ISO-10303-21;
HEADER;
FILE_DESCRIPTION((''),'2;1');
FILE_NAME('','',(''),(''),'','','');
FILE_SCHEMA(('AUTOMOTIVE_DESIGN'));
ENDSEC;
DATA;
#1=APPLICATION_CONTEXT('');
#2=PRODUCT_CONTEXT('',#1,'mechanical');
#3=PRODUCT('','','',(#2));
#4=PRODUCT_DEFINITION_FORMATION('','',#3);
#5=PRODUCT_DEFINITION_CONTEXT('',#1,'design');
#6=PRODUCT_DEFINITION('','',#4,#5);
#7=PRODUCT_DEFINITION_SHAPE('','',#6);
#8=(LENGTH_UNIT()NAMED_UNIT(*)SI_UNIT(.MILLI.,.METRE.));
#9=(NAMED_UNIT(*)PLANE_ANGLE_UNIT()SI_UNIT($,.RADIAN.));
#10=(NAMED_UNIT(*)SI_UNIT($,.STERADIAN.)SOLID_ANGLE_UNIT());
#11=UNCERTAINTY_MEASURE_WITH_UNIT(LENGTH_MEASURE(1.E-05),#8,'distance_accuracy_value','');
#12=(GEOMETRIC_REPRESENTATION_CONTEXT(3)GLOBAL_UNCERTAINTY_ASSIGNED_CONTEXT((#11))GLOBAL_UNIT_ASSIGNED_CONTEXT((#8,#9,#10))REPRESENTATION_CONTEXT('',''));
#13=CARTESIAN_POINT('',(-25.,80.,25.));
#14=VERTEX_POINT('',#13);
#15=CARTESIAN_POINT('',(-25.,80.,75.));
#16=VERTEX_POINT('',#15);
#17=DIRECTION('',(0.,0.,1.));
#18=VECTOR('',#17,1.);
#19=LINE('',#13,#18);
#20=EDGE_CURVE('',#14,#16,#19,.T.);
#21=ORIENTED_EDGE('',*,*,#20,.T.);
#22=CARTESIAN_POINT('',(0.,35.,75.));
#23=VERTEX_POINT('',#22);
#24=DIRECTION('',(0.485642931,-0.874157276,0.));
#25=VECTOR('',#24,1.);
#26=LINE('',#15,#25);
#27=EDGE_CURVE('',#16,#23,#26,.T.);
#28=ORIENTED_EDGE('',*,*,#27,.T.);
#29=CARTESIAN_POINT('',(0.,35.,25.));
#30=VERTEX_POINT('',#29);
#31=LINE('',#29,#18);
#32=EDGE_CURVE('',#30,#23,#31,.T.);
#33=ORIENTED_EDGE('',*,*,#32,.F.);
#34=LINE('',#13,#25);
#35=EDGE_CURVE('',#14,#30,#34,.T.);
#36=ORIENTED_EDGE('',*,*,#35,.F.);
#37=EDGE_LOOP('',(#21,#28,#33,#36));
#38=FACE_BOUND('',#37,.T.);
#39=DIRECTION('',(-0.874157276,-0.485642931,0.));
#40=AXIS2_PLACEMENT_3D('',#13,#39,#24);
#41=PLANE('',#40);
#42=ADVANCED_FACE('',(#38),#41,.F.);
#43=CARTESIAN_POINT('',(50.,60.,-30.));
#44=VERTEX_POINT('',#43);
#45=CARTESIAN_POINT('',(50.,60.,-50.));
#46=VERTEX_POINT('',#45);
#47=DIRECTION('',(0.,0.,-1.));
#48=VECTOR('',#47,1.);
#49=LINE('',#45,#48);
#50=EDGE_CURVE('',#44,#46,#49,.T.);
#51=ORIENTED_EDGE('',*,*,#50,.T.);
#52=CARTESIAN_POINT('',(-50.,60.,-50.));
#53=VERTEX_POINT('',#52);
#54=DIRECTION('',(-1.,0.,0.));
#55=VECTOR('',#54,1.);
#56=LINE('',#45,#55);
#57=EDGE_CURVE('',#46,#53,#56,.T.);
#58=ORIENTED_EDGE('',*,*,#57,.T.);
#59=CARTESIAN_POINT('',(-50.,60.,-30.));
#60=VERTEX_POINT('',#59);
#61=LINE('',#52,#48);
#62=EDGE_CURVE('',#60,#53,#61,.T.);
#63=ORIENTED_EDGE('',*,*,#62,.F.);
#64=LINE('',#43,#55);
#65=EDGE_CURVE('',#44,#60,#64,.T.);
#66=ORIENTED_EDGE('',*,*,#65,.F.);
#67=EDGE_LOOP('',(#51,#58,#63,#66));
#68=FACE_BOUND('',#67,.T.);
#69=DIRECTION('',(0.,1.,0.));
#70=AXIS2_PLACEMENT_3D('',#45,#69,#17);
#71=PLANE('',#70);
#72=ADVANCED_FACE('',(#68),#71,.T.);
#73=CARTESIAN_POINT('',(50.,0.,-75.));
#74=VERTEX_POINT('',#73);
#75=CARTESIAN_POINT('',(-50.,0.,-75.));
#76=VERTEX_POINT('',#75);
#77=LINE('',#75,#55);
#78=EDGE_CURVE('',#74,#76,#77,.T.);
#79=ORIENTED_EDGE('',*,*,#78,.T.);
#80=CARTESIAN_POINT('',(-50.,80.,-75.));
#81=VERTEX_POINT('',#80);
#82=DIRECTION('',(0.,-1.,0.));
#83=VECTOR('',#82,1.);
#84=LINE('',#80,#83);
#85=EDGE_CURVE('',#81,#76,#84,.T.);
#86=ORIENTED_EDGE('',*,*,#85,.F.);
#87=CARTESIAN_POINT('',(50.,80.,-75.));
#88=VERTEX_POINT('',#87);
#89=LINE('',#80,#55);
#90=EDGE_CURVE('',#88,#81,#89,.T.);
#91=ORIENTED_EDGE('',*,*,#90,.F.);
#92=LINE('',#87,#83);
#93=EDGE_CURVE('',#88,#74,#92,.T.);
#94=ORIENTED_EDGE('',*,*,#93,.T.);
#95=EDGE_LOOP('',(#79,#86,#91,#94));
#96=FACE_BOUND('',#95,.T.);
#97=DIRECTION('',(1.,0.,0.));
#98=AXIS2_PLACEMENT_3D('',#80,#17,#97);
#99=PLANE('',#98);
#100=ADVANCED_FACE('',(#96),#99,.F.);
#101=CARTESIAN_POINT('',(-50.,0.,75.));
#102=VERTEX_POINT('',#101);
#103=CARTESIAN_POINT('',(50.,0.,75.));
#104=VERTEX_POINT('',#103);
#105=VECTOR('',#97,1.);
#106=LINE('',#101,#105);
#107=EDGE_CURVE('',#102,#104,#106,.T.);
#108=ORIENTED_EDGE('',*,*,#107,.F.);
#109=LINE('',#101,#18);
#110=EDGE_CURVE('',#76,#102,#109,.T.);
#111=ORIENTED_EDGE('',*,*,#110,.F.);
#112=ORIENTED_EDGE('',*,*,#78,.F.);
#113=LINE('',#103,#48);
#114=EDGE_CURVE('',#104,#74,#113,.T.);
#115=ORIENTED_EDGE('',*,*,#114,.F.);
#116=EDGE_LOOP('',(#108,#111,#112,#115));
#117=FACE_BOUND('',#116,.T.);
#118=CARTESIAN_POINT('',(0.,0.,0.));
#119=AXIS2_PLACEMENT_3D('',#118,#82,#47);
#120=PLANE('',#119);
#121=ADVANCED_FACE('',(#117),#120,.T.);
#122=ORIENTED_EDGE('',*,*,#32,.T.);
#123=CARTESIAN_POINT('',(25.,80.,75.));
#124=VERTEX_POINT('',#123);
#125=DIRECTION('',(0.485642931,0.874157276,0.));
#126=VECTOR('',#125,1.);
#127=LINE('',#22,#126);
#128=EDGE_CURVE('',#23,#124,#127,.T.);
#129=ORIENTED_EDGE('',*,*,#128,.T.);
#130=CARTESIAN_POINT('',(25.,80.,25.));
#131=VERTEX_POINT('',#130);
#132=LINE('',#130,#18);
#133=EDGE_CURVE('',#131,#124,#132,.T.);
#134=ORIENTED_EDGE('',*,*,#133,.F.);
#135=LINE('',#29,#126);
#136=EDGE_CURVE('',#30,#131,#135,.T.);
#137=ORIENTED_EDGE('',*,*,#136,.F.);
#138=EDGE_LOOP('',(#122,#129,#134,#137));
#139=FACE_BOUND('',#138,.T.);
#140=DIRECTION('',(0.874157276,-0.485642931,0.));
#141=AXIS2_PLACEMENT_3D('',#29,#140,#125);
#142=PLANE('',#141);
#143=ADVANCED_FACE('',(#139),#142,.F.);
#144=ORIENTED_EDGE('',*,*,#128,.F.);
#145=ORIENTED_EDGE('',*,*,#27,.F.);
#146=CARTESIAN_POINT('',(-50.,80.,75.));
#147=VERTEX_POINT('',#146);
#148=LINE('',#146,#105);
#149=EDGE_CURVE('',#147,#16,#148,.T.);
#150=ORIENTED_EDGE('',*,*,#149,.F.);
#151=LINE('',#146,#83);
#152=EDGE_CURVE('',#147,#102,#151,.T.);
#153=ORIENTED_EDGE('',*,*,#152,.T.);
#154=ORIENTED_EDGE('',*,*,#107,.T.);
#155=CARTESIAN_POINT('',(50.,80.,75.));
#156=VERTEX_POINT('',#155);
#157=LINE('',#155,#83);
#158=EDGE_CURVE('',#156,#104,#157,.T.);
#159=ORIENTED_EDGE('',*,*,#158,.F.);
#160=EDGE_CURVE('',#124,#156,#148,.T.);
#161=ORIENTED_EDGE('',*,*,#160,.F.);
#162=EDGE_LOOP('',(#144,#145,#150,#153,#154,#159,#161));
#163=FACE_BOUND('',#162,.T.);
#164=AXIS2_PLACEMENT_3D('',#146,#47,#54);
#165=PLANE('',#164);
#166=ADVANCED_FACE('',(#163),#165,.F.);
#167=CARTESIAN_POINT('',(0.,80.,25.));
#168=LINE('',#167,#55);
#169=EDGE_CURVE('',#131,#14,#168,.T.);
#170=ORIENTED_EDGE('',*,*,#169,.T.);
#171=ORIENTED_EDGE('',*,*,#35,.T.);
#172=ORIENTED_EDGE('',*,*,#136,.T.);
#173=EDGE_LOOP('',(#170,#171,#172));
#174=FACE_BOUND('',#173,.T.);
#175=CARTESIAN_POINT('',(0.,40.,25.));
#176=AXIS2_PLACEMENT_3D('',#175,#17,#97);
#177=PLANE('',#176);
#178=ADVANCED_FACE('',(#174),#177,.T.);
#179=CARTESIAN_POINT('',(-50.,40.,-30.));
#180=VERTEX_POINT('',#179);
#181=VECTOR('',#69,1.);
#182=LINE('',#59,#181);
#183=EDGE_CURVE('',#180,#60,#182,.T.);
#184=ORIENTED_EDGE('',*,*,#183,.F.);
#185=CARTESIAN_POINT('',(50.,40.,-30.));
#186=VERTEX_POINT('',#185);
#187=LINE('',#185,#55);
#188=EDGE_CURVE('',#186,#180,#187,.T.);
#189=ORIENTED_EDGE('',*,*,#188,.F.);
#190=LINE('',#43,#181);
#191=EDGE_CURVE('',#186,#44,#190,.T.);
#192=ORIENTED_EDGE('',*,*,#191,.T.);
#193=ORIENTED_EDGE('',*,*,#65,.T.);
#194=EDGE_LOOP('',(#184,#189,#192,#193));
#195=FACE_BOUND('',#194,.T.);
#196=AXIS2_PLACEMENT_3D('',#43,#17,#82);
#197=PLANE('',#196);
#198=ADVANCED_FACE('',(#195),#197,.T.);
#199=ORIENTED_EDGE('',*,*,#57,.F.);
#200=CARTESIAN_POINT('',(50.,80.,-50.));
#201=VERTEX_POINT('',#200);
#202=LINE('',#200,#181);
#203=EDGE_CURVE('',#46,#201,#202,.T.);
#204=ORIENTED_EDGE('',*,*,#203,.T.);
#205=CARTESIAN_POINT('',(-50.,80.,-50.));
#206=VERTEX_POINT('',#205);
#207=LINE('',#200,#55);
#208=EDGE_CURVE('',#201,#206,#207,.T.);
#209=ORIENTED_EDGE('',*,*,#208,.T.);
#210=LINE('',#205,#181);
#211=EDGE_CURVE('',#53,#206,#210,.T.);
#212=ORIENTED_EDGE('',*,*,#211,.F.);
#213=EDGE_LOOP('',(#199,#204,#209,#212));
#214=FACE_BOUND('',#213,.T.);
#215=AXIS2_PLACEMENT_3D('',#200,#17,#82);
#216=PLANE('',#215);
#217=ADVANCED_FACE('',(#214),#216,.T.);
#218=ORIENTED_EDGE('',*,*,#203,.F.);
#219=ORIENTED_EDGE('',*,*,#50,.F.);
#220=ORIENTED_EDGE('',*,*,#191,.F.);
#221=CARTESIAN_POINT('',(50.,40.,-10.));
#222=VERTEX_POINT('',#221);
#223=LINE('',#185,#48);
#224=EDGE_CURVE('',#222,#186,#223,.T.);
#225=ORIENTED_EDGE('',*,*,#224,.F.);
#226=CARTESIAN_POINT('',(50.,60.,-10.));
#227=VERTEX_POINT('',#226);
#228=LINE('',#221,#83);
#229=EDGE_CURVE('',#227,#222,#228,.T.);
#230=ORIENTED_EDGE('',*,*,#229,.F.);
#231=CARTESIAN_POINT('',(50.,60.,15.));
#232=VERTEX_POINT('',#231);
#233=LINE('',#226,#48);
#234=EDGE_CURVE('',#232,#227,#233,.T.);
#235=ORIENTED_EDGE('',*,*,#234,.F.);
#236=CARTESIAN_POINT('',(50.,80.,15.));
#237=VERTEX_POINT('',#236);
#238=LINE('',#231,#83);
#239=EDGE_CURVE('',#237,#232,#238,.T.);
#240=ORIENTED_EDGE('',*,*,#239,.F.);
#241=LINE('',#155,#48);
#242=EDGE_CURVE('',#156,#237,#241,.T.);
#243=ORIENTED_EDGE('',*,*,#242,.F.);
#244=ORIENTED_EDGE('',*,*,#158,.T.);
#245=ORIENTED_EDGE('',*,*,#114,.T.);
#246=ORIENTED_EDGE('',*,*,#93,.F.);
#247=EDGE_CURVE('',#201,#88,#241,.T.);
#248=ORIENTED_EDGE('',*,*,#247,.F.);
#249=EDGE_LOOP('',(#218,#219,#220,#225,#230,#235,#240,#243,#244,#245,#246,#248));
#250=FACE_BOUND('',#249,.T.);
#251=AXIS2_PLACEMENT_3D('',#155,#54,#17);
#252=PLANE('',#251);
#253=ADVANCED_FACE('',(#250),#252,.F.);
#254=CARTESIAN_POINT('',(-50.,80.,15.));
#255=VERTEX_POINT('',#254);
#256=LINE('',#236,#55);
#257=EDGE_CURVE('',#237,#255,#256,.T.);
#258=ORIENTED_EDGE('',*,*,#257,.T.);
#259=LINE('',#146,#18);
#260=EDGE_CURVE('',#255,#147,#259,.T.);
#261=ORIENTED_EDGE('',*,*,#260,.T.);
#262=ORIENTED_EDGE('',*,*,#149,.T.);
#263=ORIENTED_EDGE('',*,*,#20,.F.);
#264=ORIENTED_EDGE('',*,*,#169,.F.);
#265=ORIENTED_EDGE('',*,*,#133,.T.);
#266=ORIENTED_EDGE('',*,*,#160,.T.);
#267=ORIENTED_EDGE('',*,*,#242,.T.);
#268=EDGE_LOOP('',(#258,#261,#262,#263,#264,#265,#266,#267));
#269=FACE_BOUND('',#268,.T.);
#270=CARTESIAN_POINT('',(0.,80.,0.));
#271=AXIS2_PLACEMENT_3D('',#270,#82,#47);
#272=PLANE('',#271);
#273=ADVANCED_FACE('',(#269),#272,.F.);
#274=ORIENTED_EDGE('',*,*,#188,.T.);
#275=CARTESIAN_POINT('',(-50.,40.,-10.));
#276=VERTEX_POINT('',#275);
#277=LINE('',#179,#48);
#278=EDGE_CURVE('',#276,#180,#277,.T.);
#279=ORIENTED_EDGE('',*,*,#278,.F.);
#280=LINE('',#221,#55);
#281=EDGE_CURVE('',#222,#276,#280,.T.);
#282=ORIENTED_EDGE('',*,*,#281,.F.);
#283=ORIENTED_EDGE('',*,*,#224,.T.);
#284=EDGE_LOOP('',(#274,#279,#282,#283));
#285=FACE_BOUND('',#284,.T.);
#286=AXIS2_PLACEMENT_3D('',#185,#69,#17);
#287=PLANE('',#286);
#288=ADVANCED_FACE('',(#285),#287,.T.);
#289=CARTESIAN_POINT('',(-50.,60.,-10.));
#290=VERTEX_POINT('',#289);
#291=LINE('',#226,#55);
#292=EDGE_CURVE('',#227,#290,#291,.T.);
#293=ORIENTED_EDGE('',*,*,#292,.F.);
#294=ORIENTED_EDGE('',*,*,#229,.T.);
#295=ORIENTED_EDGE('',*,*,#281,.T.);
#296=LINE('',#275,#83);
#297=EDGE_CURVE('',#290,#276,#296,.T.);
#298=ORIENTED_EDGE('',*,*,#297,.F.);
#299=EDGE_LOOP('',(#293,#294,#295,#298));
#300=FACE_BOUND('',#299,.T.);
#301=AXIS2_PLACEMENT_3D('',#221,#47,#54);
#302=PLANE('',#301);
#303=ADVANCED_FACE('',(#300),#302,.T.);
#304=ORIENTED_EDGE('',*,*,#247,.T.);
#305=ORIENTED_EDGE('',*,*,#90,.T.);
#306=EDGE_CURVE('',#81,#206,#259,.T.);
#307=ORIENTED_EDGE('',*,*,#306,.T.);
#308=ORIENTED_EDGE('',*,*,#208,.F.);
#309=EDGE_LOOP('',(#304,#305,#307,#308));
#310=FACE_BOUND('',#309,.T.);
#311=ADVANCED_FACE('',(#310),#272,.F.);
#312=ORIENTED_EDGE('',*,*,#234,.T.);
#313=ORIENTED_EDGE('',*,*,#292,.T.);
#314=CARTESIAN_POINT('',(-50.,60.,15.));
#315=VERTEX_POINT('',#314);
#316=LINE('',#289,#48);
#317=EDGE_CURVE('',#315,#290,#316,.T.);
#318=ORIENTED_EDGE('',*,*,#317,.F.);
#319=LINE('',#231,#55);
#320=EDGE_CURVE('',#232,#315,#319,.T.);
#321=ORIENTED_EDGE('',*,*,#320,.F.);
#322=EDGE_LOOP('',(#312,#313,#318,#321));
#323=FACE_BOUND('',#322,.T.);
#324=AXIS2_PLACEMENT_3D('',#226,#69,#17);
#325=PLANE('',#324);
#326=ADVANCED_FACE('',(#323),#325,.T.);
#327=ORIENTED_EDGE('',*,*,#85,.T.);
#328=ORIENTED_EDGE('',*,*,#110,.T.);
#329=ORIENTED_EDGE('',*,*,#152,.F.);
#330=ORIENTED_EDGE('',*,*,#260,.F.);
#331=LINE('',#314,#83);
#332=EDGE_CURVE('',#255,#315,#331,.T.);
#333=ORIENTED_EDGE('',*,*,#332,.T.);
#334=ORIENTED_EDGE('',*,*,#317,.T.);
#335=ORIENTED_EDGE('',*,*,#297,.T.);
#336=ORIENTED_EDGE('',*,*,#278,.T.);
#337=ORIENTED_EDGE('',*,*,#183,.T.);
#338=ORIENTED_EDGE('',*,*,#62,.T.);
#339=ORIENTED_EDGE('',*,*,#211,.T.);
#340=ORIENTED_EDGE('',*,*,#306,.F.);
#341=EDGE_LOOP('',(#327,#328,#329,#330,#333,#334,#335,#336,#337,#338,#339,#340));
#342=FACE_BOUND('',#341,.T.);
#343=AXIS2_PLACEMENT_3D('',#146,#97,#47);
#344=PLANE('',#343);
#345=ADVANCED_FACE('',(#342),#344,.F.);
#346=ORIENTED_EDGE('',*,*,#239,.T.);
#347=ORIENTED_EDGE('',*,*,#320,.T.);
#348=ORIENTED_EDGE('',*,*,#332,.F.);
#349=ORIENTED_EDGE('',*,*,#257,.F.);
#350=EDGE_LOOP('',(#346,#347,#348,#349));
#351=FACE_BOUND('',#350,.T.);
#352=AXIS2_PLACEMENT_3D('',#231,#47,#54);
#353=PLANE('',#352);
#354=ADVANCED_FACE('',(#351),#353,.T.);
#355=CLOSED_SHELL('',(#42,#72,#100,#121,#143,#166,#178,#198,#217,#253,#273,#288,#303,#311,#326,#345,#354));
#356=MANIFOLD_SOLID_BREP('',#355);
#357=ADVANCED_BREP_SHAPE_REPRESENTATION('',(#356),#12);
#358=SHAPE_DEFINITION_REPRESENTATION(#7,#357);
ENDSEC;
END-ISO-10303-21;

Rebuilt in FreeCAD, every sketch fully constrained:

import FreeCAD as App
import Part
import Sketcher

doc = App.newDocument("Part")
body = doc.addObject("PartDesign::Body", "Body")

sketch1 = doc.addObject("Sketcher::SketchObject", "Sketch")
body.addObject(sketch1)
sketch1.AttachmentSupport = (doc.XZ_Plane, [""])
sketch1.MapMode = "FlatFace"
sketch1.addGeometry(Part.LineSegment(App.Vector(-50, -75, 0), App.Vector(-50, 75, 0)), False)
sketch1.addGeometry(Part.LineSegment(App.Vector(-50, 75, 0), App.Vector(50, 75, 0)), False)
sketch1.addGeometry(Part.LineSegment(App.Vector(50, 75, 0), App.Vector(50, -75, 0)), False)
sketch1.addGeometry(Part.LineSegment(App.Vector(50, -75, 0), App.Vector(-50, -75, 0)), False)
sketch1.addConstraint(Sketcher.Constraint("Coincident", 0, 2, 1, 1))
sketch1.addConstraint(Sketcher.Constraint("Coincident", 1, 2, 2, 1))
sketch1.addConstraint(Sketcher.Constraint("Coincident", 2, 2, 3, 1))
sketch1.addConstraint(Sketcher.Constraint("Coincident", 3, 2, 0, 1))
sketch1.addConstraint(Sketcher.Constraint("Vertical", 0))
sketch1.addConstraint(Sketcher.Constraint("Horizontal", 1))
sketch1.addConstraint(Sketcher.Constraint("Vertical", 2))
sketch1.addConstraint(Sketcher.Constraint("Horizontal", 3))
sketch1.addConstraint(Sketcher.Constraint("Symmetric", 0, 2, 2, 2, -1, 1))
sketch1.addConstraint(Sketcher.Constraint("DistanceX", 1, 1, 1, 2, 100.0))
sketch1.addConstraint(Sketcher.Constraint("DistanceY", 0, 1, 0, 2, 150.0))
pad1 = doc.addObject("PartDesign::Pad", "Pad")
body.addObject(pad1)
pad1.Profile = sketch1
pad1.Length = 80
pad1.Reversed = True

sketch2 = doc.addObject("Sketcher::SketchObject", "Sketch001")
body.addObject(sketch2)
sketch2.AttachmentSupport = (doc.XY_Plane, [""])
sketch2.MapMode = "FlatFace"
sketch2.AttachmentOffset = App.Placement(App.Vector(0, 0, 75), App.Rotation())
sketch2.addGeometry(Part.LineSegment(App.Vector(-70.723, 100.723, 0), App.Vector(-70.723, -20.723, 0)), False)
sketch2.addGeometry(Part.LineSegment(App.Vector(-70.723, -20.723, 0), App.Vector(70.723, -20.723, 0)), False)
sketch2.addGeometry(Part.LineSegment(App.Vector(70.723, -20.723, 0), App.Vector(70.723, 100.723, 0)), False)
sketch2.addGeometry(Part.LineSegment(App.Vector(70.723, 100.723, 0), App.Vector(-70.723, 100.723, 0)), False)
sketch2.addGeometry(Part.LineSegment(App.Vector(50, 80, 0), App.Vector(50, 0, 0)), False)
sketch2.addGeometry(Part.LineSegment(App.Vector(50, 0, 0), App.Vector(-50, 0, 0)), False)
sketch2.addGeometry(Part.LineSegment(App.Vector(-50, 0, 0), App.Vector(-50, 80, 0)), False)
sketch2.addGeometry(Part.LineSegment(App.Vector(-50, 80, 0), App.Vector(-25, 80, 0)), False)
sketch2.addGeometry(Part.LineSegment(App.Vector(-25, 80, 0), App.Vector(0, 35, 0)), False)
sketch2.addGeometry(Part.LineSegment(App.Vector(0, 35, 0), App.Vector(25, 80, 0)), False)
sketch2.addGeometry(Part.LineSegment(App.Vector(25, 80, 0), App.Vector(50, 80, 0)), False)
sketch2.addConstraint(Sketcher.Constraint("Coincident", 0, 2, 1, 1))
sketch2.addConstraint(Sketcher.Constraint("Coincident", 1, 2, 2, 1))
sketch2.addConstraint(Sketcher.Constraint("Coincident", 2, 2, 3, 1))
sketch2.addConstraint(Sketcher.Constraint("Coincident", 3, 2, 0, 1))
sketch2.addConstraint(Sketcher.Constraint("Coincident", 4, 2, 5, 1))
sketch2.addConstraint(Sketcher.Constraint("Coincident", 5, 2, 6, 1))
sketch2.addConstraint(Sketcher.Constraint("Coincident", 6, 2, 7, 1))
sketch2.addConstraint(Sketcher.Constraint("Coincident", 7, 2, 8, 1))
sketch2.addConstraint(Sketcher.Constraint("Coincident", 8, 2, 9, 1))
sketch2.addConstraint(Sketcher.Constraint("Coincident", 9, 2, 10, 1))
sketch2.addConstraint(Sketcher.Constraint("Coincident", 10, 2, 4, 1))
sketch2.addConstraint(Sketcher.Constraint("Vertical", 0))
sketch2.addConstraint(Sketcher.Constraint("Horizontal", 1))
sketch2.addConstraint(Sketcher.Constraint("Vertical", 2))
sketch2.addConstraint(Sketcher.Constraint("Horizontal", 3))
sketch2.addConstraint(Sketcher.Constraint("Vertical", 4))
sketch2.addConstraint(Sketcher.Constraint("Horizontal", 5))
sketch2.addConstraint(Sketcher.Constraint("Vertical", 6))
sketch2.addConstraint(Sketcher.Constraint("Horizontal", 7))
sketch2.addConstraint(Sketcher.Constraint("Horizontal", 10))
sketch2.addConstraint(Sketcher.Constraint("Symmetric", 4, 2, 5, 2, -1, 1))
sketch2.addConstraint(Sketcher.Constraint("Symmetric", 7, 2, 9, 2, -2))
sketch2.addConstraint(Sketcher.Constraint("PointOnObject", 8, 2, -2))
sketch2.addConstraint(Sketcher.Constraint("DistanceX", 5, 2, 5, 1, 100.0))
sketch2.addConstraint(Sketcher.Constraint("DistanceX", 7, 1, 7, 2, 25.0))
sketch2.addConstraint(Sketcher.Constraint("DistanceY", 4, 2, 4, 1, 80.0))
sketch2.addConstraint(Sketcher.Constraint("DistanceY", -1, 1, 8, 2, 35.0))
sketch2.addConstraint(Sketcher.Constraint("DistanceX", 1, 1, 1, 2, 141.446))
sketch2.addConstraint(Sketcher.Constraint("DistanceY", 0, 2, 0, 1, 121.446))
sketch2.addConstraint(Sketcher.Constraint("DistanceX", 0, 2, -1, 1, 70.723))
sketch2.addConstraint(Sketcher.Constraint("DistanceY", 0, 2, -1, 1, 20.723))
pocket1 = doc.addObject("PartDesign::Pocket", "Pocket")
body.addObject(pocket1)
pocket1.Profile = sketch2
pocket1.Length = 50

sketch3 = doc.addObject("Sketcher::SketchObject", "Sketch002")
body.addObject(sketch3)
sketch3.AttachmentSupport = (doc.YZ_Plane, [""])
sketch3.MapMode = "FlatFace"
sketch3.AttachmentOffset = App.Placement(App.Vector(0, 0, -50), App.Rotation())
sketch3.addGeometry(Part.LineSegment(App.Vector(100.723, -95.723, 0), App.Vector(-20.723, -95.723, 0)), False)
sketch3.addGeometry(Part.LineSegment(App.Vector(-20.723, -95.723, 0), App.Vector(-20.723, 95.723, 0)), False)
sketch3.addGeometry(Part.LineSegment(App.Vector(-20.723, 95.723, 0), App.Vector(100.723, 95.723, 0)), False)
sketch3.addGeometry(Part.LineSegment(App.Vector(100.723, 95.723, 0), App.Vector(100.723, -95.723, 0)), False)
sketch3.addGeometry(Part.LineSegment(App.Vector(0, -75, 0), App.Vector(80, -75, 0)), False)
sketch3.addGeometry(Part.LineSegment(App.Vector(80, -75, 0), App.Vector(80, -50, 0)), False)
sketch3.addGeometry(Part.LineSegment(App.Vector(80, -50, 0), App.Vector(60, -50, 0)), False)
sketch3.addGeometry(Part.LineSegment(App.Vector(60, -50, 0), App.Vector(60, -30, 0)), False)
sketch3.addGeometry(Part.LineSegment(App.Vector(60, -30, 0), App.Vector(40, -30, 0)), False)
sketch3.addGeometry(Part.LineSegment(App.Vector(40, -30, 0), App.Vector(40, -10, 0)), False)
sketch3.addGeometry(Part.LineSegment(App.Vector(40, -10, 0), App.Vector(60, -10, 0)), False)
sketch3.addGeometry(Part.LineSegment(App.Vector(60, -10, 0), App.Vector(60, 15, 0)), False)
sketch3.addGeometry(Part.LineSegment(App.Vector(60, 15, 0), App.Vector(80, 15, 0)), False)
sketch3.addGeometry(Part.LineSegment(App.Vector(80, 15, 0), App.Vector(80, 75, 0)), False)
sketch3.addGeometry(Part.LineSegment(App.Vector(80, 75, 0), App.Vector(0, 75, 0)), False)
sketch3.addGeometry(Part.LineSegment(App.Vector(0, 75, 0), App.Vector(0, -75, 0)), False)
sketch3.addConstraint(Sketcher.Constraint("Coincident", 0, 2, 1, 1))
sketch3.addConstraint(Sketcher.Constraint("Coincident", 1, 2, 2, 1))
sketch3.addConstraint(Sketcher.Constraint("Coincident", 2, 2, 3, 1))
sketch3.addConstraint(Sketcher.Constraint("Coincident", 3, 2, 0, 1))
sketch3.addConstraint(Sketcher.Constraint("Coincident", 4, 2, 5, 1))
sketch3.addConstraint(Sketcher.Constraint("Coincident", 5, 2, 6, 1))
sketch3.addConstraint(Sketcher.Constraint("Coincident", 6, 2, 7, 1))
sketch3.addConstraint(Sketcher.Constraint("Coincident", 7, 2, 8, 1))
sketch3.addConstraint(Sketcher.Constraint("Coincident", 8, 2, 9, 1))
sketch3.addConstraint(Sketcher.Constraint("Coincident", 9, 2, 10, 1))
sketch3.addConstraint(Sketcher.Constraint("Coincident", 10, 2, 11, 1))
sketch3.addConstraint(Sketcher.Constraint("Coincident", 11, 2, 12, 1))
sketch3.addConstraint(Sketcher.Constraint("Coincident", 12, 2, 13, 1))
sketch3.addConstraint(Sketcher.Constraint("Coincident", 13, 2, 14, 1))
sketch3.addConstraint(Sketcher.Constraint("Coincident", 14, 2, 15, 1))
sketch3.addConstraint(Sketcher.Constraint("Coincident", 15, 2, 4, 1))
sketch3.addConstraint(Sketcher.Constraint("Horizontal", 0))
sketch3.addConstraint(Sketcher.Constraint("Vertical", 1))
sketch3.addConstraint(Sketcher.Constraint("Horizontal", 2))
sketch3.addConstraint(Sketcher.Constraint("Vertical", 3))
sketch3.addConstraint(Sketcher.Constraint("Horizontal", 4))
sketch3.addConstraint(Sketcher.Constraint("Vertical", 5))
sketch3.addConstraint(Sketcher.Constraint("Horizontal", 6))
sketch3.addConstraint(Sketcher.Constraint("Vertical", 7))
sketch3.addConstraint(Sketcher.Constraint("Horizontal", 8))
sketch3.addConstraint(Sketcher.Constraint("Vertical", 9))
sketch3.addConstraint(Sketcher.Constraint("Horizontal", 10))
sketch3.addConstraint(Sketcher.Constraint("Vertical", 11))
sketch3.addConstraint(Sketcher.Constraint("Horizontal", 12))
sketch3.addConstraint(Sketcher.Constraint("Vertical", 13))
sketch3.addConstraint(Sketcher.Constraint("Horizontal", 14))
sketch3.addConstraint(Sketcher.Constraint("Vertical", 15))
sketch3.addConstraint(Sketcher.Constraint("Symmetric", 14, 2, 15, 2, -1, 1))
sketch3.addConstraint(Sketcher.Constraint("Vertical", 7, 2, 10, 2))
sketch3.addConstraint(Sketcher.Constraint("Vertical", 5, 2, 12, 2))
sketch3.addConstraint(Sketcher.Constraint("Equal", 6, 8))
sketch3.addConstraint(Sketcher.Constraint("Equal", 12, 7))
sketch3.addConstraint(Sketcher.Constraint("Equal", 7, 9))
sketch3.addConstraint(Sketcher.Constraint("Equal", 5, 11))
sketch3.addConstraint(Sketcher.Constraint("DistanceX", 4, 1, 4, 2, 80.0))
sketch3.addConstraint(Sketcher.Constraint("DistanceX", 6, 2, 6, 1, 20.0))
sketch3.addConstraint(Sketcher.Constraint("DistanceY", 5, 1, 5, 2, 25.0))
sketch3.addConstraint(Sketcher.Constraint("DistanceY", 13, 1, 13, 2, 60.0))
sketch3.addConstraint(Sketcher.Constraint("DistanceX", 0, 2, 0, 1, 121.446))
sketch3.addConstraint(Sketcher.Constraint("DistanceY", 1, 1, 1, 2, 191.446))
sketch3.addConstraint(Sketcher.Constraint("DistanceX", 0, 2, -1, 1, 20.723))
sketch3.addConstraint(Sketcher.Constraint("DistanceY", 0, 2, -1, 1, 95.723))
pocket2 = doc.addObject("PartDesign::Pocket", "Pocket001")
body.addObject(pocket2)
pocket2.Profile = sketch3
pocket2.Length = 100
pocket2.Reversed = True

doc.recompute()
